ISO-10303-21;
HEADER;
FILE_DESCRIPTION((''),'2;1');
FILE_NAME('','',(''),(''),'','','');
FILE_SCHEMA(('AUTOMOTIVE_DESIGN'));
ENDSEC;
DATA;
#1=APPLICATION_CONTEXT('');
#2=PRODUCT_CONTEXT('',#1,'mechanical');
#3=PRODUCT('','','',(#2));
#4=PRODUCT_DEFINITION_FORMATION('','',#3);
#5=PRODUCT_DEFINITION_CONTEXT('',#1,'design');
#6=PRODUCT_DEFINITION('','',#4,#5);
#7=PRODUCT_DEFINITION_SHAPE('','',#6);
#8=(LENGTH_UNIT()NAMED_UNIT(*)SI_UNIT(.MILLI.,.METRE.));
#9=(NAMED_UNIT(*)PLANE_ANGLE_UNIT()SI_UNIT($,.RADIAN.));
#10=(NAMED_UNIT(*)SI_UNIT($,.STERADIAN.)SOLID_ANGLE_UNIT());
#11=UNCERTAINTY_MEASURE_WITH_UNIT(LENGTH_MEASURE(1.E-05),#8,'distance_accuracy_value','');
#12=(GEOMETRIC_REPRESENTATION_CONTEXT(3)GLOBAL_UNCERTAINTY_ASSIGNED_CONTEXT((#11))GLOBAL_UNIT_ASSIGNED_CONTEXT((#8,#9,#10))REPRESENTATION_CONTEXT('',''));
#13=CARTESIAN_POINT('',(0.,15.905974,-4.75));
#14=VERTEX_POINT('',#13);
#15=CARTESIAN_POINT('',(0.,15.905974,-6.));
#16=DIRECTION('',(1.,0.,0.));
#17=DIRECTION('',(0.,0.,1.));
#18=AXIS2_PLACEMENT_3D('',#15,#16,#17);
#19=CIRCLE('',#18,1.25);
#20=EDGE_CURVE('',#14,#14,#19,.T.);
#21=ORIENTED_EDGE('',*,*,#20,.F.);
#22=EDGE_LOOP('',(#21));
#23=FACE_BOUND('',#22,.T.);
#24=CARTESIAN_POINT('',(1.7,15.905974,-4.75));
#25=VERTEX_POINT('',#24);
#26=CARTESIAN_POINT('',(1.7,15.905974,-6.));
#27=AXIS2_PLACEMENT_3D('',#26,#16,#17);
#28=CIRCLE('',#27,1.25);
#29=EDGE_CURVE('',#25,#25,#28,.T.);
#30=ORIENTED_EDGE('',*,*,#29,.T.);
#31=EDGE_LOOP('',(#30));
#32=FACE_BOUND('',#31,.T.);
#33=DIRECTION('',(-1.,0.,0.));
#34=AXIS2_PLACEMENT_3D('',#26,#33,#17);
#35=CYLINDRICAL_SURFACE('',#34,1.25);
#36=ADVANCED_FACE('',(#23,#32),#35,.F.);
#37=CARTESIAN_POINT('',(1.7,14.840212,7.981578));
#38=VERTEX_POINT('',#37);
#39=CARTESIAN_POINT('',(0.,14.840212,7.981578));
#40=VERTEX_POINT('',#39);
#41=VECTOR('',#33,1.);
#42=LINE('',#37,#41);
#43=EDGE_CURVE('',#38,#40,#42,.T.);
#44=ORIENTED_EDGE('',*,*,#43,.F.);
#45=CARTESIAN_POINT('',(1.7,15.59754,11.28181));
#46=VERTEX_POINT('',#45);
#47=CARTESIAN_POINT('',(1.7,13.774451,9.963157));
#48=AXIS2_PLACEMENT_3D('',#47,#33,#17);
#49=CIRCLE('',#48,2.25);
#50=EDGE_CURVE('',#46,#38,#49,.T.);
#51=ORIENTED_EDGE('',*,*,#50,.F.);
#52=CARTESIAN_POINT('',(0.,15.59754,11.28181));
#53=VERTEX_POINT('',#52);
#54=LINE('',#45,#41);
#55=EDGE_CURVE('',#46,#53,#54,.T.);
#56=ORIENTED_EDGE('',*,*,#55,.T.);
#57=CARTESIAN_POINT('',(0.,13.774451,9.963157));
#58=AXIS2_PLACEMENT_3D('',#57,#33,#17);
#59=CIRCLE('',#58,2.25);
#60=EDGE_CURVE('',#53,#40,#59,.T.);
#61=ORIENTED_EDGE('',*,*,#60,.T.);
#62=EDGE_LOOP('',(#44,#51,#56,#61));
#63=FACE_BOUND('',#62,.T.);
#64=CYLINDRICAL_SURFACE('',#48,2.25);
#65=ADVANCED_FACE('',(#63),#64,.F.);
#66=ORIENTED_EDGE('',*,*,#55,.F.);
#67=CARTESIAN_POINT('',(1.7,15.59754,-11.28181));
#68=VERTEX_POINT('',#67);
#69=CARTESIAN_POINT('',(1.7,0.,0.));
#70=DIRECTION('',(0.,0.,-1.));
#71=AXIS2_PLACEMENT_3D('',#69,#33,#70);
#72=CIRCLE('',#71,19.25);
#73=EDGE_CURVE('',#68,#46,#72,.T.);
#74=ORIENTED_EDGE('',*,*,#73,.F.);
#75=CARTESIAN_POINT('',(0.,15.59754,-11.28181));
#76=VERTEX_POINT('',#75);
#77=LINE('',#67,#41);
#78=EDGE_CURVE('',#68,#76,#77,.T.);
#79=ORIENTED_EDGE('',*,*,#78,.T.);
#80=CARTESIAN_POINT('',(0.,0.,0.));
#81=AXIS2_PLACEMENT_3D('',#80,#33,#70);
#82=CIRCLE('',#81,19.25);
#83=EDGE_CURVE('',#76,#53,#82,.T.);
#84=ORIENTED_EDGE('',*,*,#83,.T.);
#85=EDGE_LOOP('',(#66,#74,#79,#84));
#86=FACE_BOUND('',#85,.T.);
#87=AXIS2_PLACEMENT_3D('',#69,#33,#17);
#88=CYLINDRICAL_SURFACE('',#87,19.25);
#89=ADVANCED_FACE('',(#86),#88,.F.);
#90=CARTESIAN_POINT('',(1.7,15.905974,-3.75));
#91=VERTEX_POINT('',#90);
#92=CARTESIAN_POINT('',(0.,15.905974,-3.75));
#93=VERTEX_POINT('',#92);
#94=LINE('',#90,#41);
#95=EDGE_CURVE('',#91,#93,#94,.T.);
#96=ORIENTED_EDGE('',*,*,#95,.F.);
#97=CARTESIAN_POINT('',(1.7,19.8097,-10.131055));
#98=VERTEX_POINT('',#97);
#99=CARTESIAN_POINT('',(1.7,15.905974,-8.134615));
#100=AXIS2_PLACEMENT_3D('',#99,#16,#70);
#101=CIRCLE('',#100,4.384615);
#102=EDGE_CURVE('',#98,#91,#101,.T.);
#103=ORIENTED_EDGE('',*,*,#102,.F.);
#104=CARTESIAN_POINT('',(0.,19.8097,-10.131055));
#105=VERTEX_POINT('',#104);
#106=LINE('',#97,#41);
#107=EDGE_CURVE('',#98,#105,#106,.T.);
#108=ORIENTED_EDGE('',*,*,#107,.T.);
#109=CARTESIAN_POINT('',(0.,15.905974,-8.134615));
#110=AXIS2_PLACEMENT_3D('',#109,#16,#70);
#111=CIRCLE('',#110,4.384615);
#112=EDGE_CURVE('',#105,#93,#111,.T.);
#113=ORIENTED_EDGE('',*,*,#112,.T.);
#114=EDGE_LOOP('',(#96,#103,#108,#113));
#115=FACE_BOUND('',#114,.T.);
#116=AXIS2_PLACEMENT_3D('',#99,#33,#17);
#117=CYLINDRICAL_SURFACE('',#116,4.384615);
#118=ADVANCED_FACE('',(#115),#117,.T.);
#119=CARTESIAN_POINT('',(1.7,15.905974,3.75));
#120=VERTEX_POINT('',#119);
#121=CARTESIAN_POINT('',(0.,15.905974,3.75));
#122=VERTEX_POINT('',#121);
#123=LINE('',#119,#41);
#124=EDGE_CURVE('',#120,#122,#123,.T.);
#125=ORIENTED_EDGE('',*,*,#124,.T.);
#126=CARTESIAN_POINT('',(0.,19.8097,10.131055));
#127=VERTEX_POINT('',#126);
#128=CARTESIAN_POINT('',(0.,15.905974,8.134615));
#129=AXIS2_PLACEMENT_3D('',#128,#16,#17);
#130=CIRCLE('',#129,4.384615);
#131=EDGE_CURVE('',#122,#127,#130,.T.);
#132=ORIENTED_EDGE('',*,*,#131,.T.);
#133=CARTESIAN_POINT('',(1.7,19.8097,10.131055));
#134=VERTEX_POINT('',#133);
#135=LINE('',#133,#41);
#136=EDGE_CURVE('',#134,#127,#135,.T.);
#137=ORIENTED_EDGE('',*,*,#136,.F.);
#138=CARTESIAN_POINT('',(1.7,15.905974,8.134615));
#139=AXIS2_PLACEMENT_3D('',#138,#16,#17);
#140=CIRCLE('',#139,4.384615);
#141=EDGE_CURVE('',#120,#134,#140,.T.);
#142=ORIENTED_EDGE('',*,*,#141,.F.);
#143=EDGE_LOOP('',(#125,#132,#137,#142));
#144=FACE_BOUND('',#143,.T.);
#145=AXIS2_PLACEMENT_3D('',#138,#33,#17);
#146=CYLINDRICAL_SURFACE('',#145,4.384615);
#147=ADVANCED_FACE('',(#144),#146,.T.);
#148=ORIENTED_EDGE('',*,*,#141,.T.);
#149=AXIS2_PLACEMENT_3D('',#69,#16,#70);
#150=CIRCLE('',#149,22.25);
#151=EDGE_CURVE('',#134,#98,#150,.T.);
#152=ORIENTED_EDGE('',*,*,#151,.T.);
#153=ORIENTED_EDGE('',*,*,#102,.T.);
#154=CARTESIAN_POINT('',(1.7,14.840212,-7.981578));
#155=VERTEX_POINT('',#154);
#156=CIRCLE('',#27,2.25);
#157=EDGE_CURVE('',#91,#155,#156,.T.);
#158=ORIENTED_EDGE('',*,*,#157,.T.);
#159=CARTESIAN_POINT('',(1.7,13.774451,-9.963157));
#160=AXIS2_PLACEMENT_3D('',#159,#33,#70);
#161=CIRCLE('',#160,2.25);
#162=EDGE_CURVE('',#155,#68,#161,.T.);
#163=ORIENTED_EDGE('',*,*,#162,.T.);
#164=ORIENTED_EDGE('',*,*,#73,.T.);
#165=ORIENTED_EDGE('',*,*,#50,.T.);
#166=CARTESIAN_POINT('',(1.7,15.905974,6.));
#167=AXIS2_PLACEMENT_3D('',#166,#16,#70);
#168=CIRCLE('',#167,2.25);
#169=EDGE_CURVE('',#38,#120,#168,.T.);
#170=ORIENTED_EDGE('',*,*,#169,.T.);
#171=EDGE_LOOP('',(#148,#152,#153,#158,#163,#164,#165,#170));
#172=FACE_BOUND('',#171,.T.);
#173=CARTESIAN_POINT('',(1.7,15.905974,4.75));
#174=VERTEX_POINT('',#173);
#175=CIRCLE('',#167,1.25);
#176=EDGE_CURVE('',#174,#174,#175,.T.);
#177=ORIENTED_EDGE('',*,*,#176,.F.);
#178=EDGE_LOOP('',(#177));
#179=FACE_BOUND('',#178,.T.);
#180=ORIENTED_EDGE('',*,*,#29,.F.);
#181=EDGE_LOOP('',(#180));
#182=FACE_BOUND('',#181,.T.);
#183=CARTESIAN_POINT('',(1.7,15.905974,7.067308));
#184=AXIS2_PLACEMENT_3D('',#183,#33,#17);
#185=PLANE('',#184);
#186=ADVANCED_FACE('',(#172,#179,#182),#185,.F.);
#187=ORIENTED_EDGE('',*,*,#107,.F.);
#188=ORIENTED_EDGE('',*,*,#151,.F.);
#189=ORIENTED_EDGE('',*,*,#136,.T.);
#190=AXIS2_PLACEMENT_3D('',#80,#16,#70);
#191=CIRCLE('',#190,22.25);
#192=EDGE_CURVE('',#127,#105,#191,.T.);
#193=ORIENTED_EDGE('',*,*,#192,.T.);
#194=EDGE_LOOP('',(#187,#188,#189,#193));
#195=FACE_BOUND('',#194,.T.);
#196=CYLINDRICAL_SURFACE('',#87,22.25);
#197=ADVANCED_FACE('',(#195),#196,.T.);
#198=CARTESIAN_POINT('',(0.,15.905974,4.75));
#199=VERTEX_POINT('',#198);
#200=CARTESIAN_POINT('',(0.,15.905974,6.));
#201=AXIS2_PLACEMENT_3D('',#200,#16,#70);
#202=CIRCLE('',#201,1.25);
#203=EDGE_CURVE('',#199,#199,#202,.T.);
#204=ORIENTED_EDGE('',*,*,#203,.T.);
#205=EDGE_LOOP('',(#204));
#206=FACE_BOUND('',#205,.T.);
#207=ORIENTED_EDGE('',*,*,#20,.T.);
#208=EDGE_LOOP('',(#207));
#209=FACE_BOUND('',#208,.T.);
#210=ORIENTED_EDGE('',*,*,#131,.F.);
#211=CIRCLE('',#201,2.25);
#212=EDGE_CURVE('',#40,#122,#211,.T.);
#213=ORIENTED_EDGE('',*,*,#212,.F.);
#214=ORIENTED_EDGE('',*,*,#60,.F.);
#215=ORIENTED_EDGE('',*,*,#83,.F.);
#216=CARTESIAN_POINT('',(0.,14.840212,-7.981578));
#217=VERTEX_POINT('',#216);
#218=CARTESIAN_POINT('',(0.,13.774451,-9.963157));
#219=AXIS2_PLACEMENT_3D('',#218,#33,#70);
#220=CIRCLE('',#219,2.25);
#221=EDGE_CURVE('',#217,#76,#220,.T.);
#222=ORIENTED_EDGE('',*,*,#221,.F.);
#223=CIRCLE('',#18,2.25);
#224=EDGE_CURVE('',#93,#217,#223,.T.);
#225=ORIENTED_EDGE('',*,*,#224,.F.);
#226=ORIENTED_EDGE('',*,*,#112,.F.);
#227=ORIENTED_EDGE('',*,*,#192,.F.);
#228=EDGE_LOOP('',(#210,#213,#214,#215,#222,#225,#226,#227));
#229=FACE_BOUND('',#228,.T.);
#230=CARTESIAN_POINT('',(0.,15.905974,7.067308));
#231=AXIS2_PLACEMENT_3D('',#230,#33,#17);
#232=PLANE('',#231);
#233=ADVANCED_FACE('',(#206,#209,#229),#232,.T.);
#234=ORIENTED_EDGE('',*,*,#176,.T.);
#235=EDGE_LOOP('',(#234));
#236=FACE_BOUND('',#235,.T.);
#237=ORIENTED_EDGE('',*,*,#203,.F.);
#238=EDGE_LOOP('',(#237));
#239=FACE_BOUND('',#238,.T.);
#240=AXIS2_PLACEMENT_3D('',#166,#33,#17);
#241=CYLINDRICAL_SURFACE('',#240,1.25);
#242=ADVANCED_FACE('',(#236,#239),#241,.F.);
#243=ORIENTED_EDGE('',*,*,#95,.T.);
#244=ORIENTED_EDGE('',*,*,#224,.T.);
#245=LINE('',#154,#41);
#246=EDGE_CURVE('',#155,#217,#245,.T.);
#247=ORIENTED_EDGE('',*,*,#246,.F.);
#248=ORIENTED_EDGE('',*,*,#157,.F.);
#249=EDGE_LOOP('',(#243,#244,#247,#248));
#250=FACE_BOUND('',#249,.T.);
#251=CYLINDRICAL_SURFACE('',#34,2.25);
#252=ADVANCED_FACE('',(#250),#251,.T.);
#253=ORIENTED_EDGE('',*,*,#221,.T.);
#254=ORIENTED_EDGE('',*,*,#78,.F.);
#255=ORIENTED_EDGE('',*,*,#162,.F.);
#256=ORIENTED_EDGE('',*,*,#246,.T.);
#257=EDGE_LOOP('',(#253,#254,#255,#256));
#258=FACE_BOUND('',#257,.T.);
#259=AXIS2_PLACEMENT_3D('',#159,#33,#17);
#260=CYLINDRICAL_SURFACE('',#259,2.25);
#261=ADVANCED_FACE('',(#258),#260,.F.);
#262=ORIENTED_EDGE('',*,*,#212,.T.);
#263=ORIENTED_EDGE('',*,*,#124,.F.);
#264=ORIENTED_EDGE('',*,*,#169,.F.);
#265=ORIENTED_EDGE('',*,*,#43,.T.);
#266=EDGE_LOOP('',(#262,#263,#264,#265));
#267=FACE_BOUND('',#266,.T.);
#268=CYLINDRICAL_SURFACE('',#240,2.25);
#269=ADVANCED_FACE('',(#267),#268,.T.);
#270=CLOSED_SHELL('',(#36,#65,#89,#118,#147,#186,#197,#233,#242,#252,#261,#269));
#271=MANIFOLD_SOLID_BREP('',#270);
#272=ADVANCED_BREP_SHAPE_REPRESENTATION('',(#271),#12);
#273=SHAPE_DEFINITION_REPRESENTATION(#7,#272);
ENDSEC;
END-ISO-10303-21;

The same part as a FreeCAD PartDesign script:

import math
import FreeCAD as App
import Part
import Sketcher
from FreeCAD import Vector

doc = App.newDocument("Part")
body = doc.addObject("PartDesign::Body", "Body")

# Sketch on YZ plane
sketch1 = body.newObject("Sketcher::SketchObject", "Sketch")
sketch1.AttachmentSupport = (doc.getObject("YZ_Plane"), [""])
sketch1.MapMode = "FlatFace"
sketch1.addGeometry([
    Part.ArcOfCircle(Part.Circle(Vector(0, 0, 0), Vector(0, 0, 1), 22.2), math.radians(27), math.radians(333)),  # 0
    Part.ArcOfCircle(Part.Circle(Vector(15.9, -8.1, 0), Vector(0, 0, 1), 4.4), math.radians(-27), math.radians(90)),  # 1
    Part.ArcOfCircle(Part.Circle(Vector(15.9, -6, 0), Vector(0, 0, 1), 2.2), math.radians(90), math.radians(242)),  # 2
    Part.ArcOfCircle(Part.Circle(Vector(13.8, -10, 0), Vector(0, 0, 1), 2.2), math.radians(-36), math.radians(62)),  # 3
    Part.ArcOfCircle(Part.Circle(Vector(0, 0, 0), Vector(0, 0, 1), 19.2), math.radians(36), math.radians(324)),  # 4
    Part.ArcOfCircle(Part.Circle(Vector(13.8, 10, 0), Vector(0, 0, 1), 2.2), math.radians(-62), math.radians(36)),  # 5
    Part.ArcOfCircle(Part.Circle(Vector(15.9, 6, 0), Vector(0, 0, 1), 2.2), math.radians(118), math.radians(270)),  # 6
    Part.ArcOfCircle(Part.Circle(Vector(15.9, 8.1, 0), Vector(0, 0, 1), 4.4), math.radians(-90), math.radians(27)),  # 7
    Part.Circle(Vector(15.9, 6, 0), Vector(0, 0, 1), 1.2),  # 8
    Part.Circle(Vector(15.9, -6, 0), Vector(0, 0, 1), 1.2),  # 9
], False)
sketch1.addConstraint([
    Sketcher.Constraint("Tangent", 0, 2, 1, 1),
    Sketcher.Constraint("Tangent", 1, 2, 2, 1),
    Sketcher.Constraint("Tangent", 2, 2, 3, 2),
    Sketcher.Constraint("Tangent", 3, 1, 4, 2),
    Sketcher.Constraint("Tangent", 4, 1, 5, 2),
    Sketcher.Constraint("Tangent", 5, 1, 6, 1),
    Sketcher.Constraint("Tangent", 6, 2, 7, 1),
    Sketcher.Constraint("Tangent", 7, 2, 0, 1),
    Sketcher.Constraint("Coincident", 0, 3, -1, 1),
    Sketcher.Constraint("Coincident", 4, 3, -1, 1),
    Sketcher.Constraint("Coincident", 8, 3, 6, 3),
    Sketcher.Constraint("Coincident", 9, 3, 2, 3),
    Sketcher.Constraint("Equal", 2, 3),
    Sketcher.Constraint("Equal", 3, 5),
    Sketcher.Constraint("Equal", 5, 6),
    Sketcher.Constraint("Equal", 1, 7),
    Sketcher.Constraint("Equal", 8, 9),
    Sketcher.Constraint("Symmetric", 2, 3, 6, 3, -1),
    Sketcher.Constraint("Vertical", 1, 3, 2, 3),
    Sketcher.Constraint("Diameter", 8, 2.5),
    Sketcher.Constraint("Radius", 0, 22.25),
    Sketcher.Constraint("Radius", 2, 2.25),
    Sketcher.Constraint("Radius", 4, 19.25),
    Sketcher.Constraint("DistanceY", 2, 3, -1, 1, 6.0),
    Sketcher.Constraint("Radius", 1, 4.384615),
])
pad1 = body.newObject("PartDesign::Pad", "Pad")
pad1.Profile = sketch1
pad1.Length = 1.7

doc.recompute()
